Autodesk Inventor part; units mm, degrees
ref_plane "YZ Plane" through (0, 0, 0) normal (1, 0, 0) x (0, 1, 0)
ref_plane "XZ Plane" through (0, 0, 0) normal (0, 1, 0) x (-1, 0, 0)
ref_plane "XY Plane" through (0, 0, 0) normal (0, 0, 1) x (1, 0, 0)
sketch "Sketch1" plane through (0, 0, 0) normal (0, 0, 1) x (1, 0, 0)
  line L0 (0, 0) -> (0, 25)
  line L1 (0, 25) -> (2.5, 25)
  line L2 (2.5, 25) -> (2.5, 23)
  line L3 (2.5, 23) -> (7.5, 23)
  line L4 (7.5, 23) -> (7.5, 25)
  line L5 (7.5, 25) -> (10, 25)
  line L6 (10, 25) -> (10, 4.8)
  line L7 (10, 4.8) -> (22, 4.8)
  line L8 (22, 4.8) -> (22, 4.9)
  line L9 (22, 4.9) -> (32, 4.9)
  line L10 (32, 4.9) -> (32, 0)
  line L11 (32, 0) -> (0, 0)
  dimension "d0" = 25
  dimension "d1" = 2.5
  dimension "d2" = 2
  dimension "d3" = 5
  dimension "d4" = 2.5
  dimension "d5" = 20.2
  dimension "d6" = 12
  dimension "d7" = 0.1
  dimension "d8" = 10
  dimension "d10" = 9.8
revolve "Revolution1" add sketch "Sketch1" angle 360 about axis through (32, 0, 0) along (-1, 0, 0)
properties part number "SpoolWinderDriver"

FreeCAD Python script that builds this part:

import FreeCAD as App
import Part
import Sketcher

V = App.Vector
Q = App.Units.Quantity

doc = App.newDocument("Part")
body = doc.addObject("PartDesign::Body", "Body")

sketch1 = body.newObject("Sketcher::SketchObject", "Sketch")
sketch1.AttachmentSupport = (doc.getObject("XY_Plane"), [""])
sketch1.MapMode = "FlatFace"
sketch1.addGeometry([
    Part.LineSegment(V(0, 25, 0), V(0, 0, 0)),
    Part.LineSegment(V(0, 0, 0), V(32, 0, 0)),
    Part.LineSegment(V(32, 0, 0), V(32, 4.9, 0)),
    Part.LineSegment(V(32, 4.9, 0), V(22, 4.9, 0)),
    Part.LineSegment(V(22, 4.9, 0), V(22, 4.8, 0)),
    Part.LineSegment(V(22, 4.8, 0), V(10, 4.8, 0)),
    Part.LineSegment(V(10, 4.8, 0), V(10, 25, 0)),
    Part.LineSegment(V(10, 25, 0), V(7.5, 25, 0)),
    Part.LineSegment(V(7.5, 25, 0), V(7.5, 23, 0)),
    Part.LineSegment(V(7.5, 23, 0), V(2.5, 23, 0)),
    Part.LineSegment(V(2.5, 23, 0), V(2.5, 25, 0)),
    Part.LineSegment(V(2.5, 25, 0), V(0, 25, 0)),
], False)
sketch1.addConstraint([
    Sketcher.Constraint("Coincident", 0, 2, 1, 1),
    Sketcher.Constraint("Coincident", 1, 2, 2, 1),
    Sketcher.Constraint("Coincident", 2, 2, 3, 1),
    Sketcher.Constraint("Coincident", 3, 2, 4, 1),
    Sketcher.Constraint("Coincident", 4, 2, 5, 1),
    Sketcher.Constraint("Coincident", 5, 2, 6, 1),
    Sketcher.Constraint("Coincident", 6, 2, 7, 1),
    Sketcher.Constraint("Coincident", 7, 2, 8, 1),
    Sketcher.Constraint("Coincident", 8, 2, 9, 1),
    Sketcher.Constraint("Coincident", 9, 2, 10, 1),
    Sketcher.Constraint("Coincident", 10, 2, 11, 1),
    Sketcher.Constraint("Coincident", 11, 2, 0, 1),
    Sketcher.Constraint("Vertical", 0),
    Sketcher.Constraint("Horizontal", 1),
    Sketcher.Constraint("Vertical", 2),
    Sketcher.Constraint("Horizontal", 3),
    Sketcher.Constraint("Vertical", 4),
    Sketcher.Constraint("Horizontal", 5),
    Sketcher.Constraint("Vertical", 6),
    Sketcher.Constraint("Horizontal", 7),
    Sketcher.Constraint("Vertical", 8),
    Sketcher.Constraint("Horizontal", 9),
    Sketcher.Constraint("Vertical", 10),
    Sketcher.Constraint("Horizontal", 11),
    Sketcher.Constraint("Coincident", 0, 2, -1, 1),
    Sketcher.Constraint("Horizontal", 7, 2, 10, 2),
    Sketcher.Constraint("Equal", 7, 11),
    Sketcher.Constraint("DistanceX", 3, 2, 3, 1, Q("10 mm")),
    Sketcher.Constraint("DistanceX", 5, 2, 5, 1, Q("12 mm")),
    Sketcher.Constraint("DistanceX", 9, 2, 9, 1, Q("5 mm")),
    Sketcher.Constraint("DistanceY", 0, 2, 0, 1, Q("25 mm")),
    Sketcher.Constraint("DistanceY", 8, 2, 8, 1, Q("2 mm")),
    Sketcher.Constraint("DistanceX", 7, 2, 7, 1, Q("2.5 mm")),
    Sketcher.Constraint("DistanceY", 4, 2, 4, 1, Q("0.1 mm")),
    Sketcher.Constraint("DistanceY", 6, 1, 6, 2, Q("20.2 mm")),
])
revolution = body.newObject("PartDesign::Revolution", "Revolution")
revolution.Profile = sketch1
revolution.ReferenceAxis = (sketch1, ["H_Axis"])
revolution.Angle = 360

doc.recompute()
